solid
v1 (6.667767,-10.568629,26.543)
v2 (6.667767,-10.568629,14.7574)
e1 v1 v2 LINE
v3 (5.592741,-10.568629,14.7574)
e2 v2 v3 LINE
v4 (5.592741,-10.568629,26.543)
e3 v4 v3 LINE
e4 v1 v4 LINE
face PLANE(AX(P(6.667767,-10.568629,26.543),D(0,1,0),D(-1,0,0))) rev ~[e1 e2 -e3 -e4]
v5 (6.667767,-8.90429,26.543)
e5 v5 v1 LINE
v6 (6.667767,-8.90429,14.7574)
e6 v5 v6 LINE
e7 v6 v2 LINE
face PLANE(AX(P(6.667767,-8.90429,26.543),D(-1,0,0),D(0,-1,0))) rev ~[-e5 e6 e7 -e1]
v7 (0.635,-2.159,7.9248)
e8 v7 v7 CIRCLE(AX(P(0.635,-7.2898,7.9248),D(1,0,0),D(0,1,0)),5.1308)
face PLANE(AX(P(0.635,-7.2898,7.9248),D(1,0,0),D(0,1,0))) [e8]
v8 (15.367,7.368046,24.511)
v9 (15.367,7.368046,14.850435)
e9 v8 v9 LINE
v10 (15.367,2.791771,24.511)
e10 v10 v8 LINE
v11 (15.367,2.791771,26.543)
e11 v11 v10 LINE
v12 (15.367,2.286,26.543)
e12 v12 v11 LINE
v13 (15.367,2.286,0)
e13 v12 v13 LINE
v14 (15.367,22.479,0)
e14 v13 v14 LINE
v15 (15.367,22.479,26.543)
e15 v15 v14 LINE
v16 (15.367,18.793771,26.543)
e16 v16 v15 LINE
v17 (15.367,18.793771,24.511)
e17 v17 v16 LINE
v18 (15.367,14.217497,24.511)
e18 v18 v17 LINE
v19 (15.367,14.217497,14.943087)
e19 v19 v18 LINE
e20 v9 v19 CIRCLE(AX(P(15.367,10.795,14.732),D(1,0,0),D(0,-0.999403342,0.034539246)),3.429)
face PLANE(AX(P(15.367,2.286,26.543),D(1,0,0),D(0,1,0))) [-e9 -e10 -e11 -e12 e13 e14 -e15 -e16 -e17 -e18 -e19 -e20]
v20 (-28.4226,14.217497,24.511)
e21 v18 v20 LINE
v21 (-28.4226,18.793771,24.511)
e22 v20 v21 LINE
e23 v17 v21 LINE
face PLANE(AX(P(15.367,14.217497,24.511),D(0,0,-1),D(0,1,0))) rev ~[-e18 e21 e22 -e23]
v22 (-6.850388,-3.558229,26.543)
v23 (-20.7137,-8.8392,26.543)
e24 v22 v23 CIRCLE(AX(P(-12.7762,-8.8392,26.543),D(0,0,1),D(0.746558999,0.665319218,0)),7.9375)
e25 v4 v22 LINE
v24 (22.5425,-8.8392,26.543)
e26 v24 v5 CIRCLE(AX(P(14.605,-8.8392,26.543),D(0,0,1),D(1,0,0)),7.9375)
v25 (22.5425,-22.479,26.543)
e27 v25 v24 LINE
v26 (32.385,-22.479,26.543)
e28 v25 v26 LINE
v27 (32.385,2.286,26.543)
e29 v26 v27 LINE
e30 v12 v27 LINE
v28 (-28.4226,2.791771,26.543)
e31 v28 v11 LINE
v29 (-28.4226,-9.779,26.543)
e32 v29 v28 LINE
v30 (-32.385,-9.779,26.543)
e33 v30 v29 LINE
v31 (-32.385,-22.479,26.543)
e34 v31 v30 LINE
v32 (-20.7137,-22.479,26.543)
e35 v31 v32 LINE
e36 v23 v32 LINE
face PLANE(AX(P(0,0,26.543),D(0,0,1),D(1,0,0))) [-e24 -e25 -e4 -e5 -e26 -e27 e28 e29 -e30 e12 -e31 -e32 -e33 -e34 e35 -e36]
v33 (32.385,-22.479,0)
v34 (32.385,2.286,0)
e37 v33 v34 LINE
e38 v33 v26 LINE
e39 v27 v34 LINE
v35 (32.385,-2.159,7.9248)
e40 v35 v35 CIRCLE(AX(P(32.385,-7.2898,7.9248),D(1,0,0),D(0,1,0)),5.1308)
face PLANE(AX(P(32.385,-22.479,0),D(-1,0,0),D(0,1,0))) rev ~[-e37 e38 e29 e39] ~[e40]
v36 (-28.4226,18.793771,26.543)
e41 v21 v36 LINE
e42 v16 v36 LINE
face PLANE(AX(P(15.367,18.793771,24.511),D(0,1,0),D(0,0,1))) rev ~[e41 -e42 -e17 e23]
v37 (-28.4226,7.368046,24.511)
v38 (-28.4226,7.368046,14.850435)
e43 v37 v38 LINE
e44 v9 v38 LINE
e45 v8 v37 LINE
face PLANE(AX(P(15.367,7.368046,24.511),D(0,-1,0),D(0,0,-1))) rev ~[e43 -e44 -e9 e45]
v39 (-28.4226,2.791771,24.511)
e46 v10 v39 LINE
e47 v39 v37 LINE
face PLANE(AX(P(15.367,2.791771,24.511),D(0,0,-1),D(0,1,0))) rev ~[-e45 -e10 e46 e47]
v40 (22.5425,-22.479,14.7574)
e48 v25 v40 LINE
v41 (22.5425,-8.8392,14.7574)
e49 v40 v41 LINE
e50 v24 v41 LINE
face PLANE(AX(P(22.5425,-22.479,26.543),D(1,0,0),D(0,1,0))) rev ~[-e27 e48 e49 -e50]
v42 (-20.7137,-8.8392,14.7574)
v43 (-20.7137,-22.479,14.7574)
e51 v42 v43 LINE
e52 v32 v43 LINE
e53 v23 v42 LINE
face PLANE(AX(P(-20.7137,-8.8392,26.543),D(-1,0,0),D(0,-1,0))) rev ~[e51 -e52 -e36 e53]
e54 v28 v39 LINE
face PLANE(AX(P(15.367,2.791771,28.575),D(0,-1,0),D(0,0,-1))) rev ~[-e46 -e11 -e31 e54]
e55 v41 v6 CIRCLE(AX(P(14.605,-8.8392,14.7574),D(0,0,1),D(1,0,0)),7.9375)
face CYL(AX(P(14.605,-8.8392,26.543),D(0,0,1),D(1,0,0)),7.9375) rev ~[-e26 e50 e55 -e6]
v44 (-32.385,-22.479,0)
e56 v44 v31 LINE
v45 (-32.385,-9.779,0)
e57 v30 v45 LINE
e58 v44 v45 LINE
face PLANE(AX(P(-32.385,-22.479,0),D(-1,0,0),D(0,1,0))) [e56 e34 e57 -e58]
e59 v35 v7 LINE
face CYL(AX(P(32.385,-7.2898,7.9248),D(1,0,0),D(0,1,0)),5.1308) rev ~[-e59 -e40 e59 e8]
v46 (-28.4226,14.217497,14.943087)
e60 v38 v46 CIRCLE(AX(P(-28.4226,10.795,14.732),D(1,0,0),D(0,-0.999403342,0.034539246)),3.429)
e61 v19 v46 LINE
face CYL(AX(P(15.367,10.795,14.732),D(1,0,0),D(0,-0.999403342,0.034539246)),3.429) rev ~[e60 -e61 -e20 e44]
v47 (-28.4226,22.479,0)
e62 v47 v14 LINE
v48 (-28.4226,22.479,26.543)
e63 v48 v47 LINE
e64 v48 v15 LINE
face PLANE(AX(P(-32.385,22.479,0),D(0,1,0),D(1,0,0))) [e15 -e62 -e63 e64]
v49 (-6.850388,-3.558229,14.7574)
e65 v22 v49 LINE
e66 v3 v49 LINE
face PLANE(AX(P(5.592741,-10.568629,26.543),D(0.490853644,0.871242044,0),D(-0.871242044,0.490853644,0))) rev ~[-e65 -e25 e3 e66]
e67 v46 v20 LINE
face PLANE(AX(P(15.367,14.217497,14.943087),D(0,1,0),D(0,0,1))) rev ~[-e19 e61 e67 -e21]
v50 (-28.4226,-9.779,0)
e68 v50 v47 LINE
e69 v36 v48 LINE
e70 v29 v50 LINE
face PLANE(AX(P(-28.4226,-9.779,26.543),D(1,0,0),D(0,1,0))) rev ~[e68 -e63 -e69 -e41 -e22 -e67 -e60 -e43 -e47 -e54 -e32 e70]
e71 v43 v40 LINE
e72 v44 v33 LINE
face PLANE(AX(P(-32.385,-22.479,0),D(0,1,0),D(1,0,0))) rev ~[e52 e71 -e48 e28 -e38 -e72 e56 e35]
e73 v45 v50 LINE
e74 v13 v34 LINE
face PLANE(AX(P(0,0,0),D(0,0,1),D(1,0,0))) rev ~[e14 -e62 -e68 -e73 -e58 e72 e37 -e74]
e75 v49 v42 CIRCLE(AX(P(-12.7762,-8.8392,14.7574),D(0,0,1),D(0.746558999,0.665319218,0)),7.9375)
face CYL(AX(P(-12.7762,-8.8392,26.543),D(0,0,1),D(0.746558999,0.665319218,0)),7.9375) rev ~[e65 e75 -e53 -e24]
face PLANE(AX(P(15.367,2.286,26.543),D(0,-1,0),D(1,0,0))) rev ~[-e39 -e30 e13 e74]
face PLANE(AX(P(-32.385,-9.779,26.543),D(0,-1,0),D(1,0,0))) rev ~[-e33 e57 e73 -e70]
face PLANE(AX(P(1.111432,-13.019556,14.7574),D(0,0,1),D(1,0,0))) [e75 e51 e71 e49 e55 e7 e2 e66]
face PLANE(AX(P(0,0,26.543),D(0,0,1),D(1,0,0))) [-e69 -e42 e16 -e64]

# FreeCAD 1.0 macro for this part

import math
import FreeCAD as App
import Part
import Sketcher
from FreeCAD import Vector
Q = App.Units.Quantity


def add_polygon(sketch, points):
    """Adds a closed chain of lines whose ends are joined by coincident constraints."""
    first, n = sketch.GeometryCount, len(points)
    for a, b in zip(points, points[1:] + points[:1]):
        sketch.addGeometry(Part.LineSegment(App.Vector(*a, 0), App.Vector(*b, 0)), False)
    for i in range(n):
        sketch.addConstraint(Sketcher.Constraint("Coincident", first + i, 2, first + (i + 1) % n, 1))

doc = App.newDocument("Part")
body = doc.addObject("PartDesign::Body", "Body")

sketch1 = doc.addObject("Sketcher::SketchObject", "Sketch")
body.addObject(sketch1)
sketch1.AttachmentSupport = (doc.XY_Plane, [""])
sketch1.MapMode = "FlatFace"
add_polygon(sketch1, [(-32, 22), (-32, -22), (32, -22), (32, 22)])
sketch1.addConstraint(Sketcher.Constraint("Vertical", 0))
sketch1.addConstraint(Sketcher.Constraint("Horizontal", 1))
sketch1.addConstraint(Sketcher.Constraint("Vertical", 2))
sketch1.addConstraint(Sketcher.Constraint("Horizontal", 3))
sketch1.addConstraint(Sketcher.Constraint("Symmetric", 0, 2, 2, 2, -1, 1))
sketch1.addConstraint(Sketcher.Constraint("DistanceX", 1, 1, 1, 2, Q("2.55 in")))
sketch1.addConstraint(Sketcher.Constraint("DistanceY", 0, 2, 0, 1, Q("1.77 in")))
pad1 = doc.addObject("PartDesign::Pad", "Pad")
body.addObject(pad1)
pad1.Profile = sketch1
pad1.Length = Q("1.045 in")

sketch2 = doc.addObject("Sketcher::SketchObject", "Sketch001")
body.addObject(sketch2)
sketch2.AttachmentSupport = (doc.XY_Plane, [""])
sketch2.MapMode = "FlatFace"
sketch2.AttachmentOffset = App.Placement(Vector(0, 0, 1.045 * 25.4), App.Rotation())
add_polygon(sketch2, [(-32.4, 22.5), (-32.4, -9.8), (-28.4, -9.8), (-28.4, 22.5)])
add_polygon(sketch2, [(15.4, 22.5), (15.4, 2.3), (32.4, 2.3), (32.4, 22.5)])
sketch2.addConstraint(Sketcher.Constraint("Vertical", 0))
sketch2.addConstraint(Sketcher.Constraint("Horizontal", 1))
sketch2.addConstraint(Sketcher.Constraint("Vertical", 2))
sketch2.addConstraint(Sketcher.Constraint("Horizontal", 3))
sketch2.addConstraint(Sketcher.Constraint("Vertical", 4))
sketch2.addConstraint(Sketcher.Constraint("Horizontal", 5))
sketch2.addConstraint(Sketcher.Constraint("Vertical", 6))
sketch2.addConstraint(Sketcher.Constraint("Horizontal", 7))
sketch2.addConstraint(Sketcher.Constraint("Symmetric", 3, 2, 6, 2, -2))
sketch2.addConstraint(Sketcher.Constraint("DistanceX", 5, 1, 5, 2, Q("0.67 in")))
sketch2.addConstraint(Sketcher.Constraint("DistanceY", 0, 2, 0, 1, Q("1.27 in")))
sketch2.addConstraint(Sketcher.Constraint("DistanceX", 1, 1, 1, 2, Q("0.156 in")))
sketch2.addConstraint(Sketcher.Constraint("DistanceY", 4, 2, 4, 1, Q("0.795 in")))
sketch2.addConstraint(Sketcher.Constraint("DistanceY", -1, 1, 4, 2, Q("0.09 in")))
sketch2.addConstraint(Sketcher.Constraint("DistanceX", 0, 2, 4, 2, Q("1.88 in")))
pocket1 = doc.addObject("PartDesign::Pocket", "Pocket")
body.addObject(pocket1)
pocket1.Profile = sketch2
pocket1.Type = "ThroughAll"

sketch3 = doc.addObject("Sketcher::SketchObject", "Sketch002")
body.addObject(sketch3)
sketch3.AttachmentSupport = (doc.YZ_Plane, [""])
sketch3.MapMode = "FlatFace"
sketch3.AttachmentOffset = App.Placement(Vector(0, 0, 0.605 * 25.4), App.Rotation())
sketch3.addGeometry(Part.LineSegment(Vector(7.4, 24.5, 0), Vector(7.4, 14.9, 0)), False)
sketch3.addGeometry(Part.ArcOfCircle(Part.Circle(Vector(10.8, 14.7, 0), Vector(0, 0, 1), 3.4), math.radians(178), math.radians(364)), False)
sketch3.addGeometry(Part.LineSegment(Vector(14.2, 14.9, 0), Vector(14.2, 24.5, 0)), False)
sketch3.addGeometry(Part.LineSegment(Vector(14.2, 24.5, 0), Vector(18.8, 24.5, 0)), False)
sketch3.addGeometry(Part.LineSegment(Vector(18.8, 24.5, 0), Vector(18.8, 28.6, 0)), False)
sketch3.addGeometry(Part.LineSegment(Vector(18.8, 28.6, 0), Vector(2.8, 28.6, 0)), False)
sketch3.addGeometry(Part.LineSegment(Vector(2.8, 28.6, 0), Vector(2.8, 24.5, 0)), False)
sketch3.addGeometry(Part.LineSegment(Vector(2.8, 24.5, 0), Vector(7.4, 24.5, 0)), False)
sketch3.addConstraint(Sketcher.Constraint("Coincident", 0, 2, 1, 1))
sketch3.addConstraint(Sketcher.Constraint("Coincident", 1, 2, 2, 1))
sketch3.addConstraint(Sketcher.Constraint("Coincident", 2, 2, 3, 1))
sketch3.addConstraint(Sketcher.Constraint("Coincident", 3, 2, 4, 1))
sketch3.addConstraint(Sketcher.Constraint("Coincident", 4, 2, 5, 1))
sketch3.addConstraint(Sketcher.Constraint("Coincident", 5, 2, 6, 1))
sketch3.addConstraint(Sketcher.Constraint("Coincident", 6, 2, 7, 1))
sketch3.addConstraint(Sketcher.Constraint("Coincident", 7, 2, 0, 1))
sketch3.addConstraint(Sketcher.Constraint("Vertical", 0))
sketch3.addConstraint(Sketcher.Constraint("Vertical", 2))
sketch3.addConstraint(Sketcher.Constraint("Horizontal", 3))
sketch3.addConstraint(Sketcher.Constraint("Vertical", 4))
sketch3.addConstraint(Sketcher.Constraint("Horizontal", 5))
sketch3.addConstraint(Sketcher.Constraint("Vertical", 6))
sketch3.addConstraint(Sketcher.Constraint("Horizontal", 7))
sketch3.addConstraint(Sketcher.Constraint("Horizontal", 3, 2, 6, 2))
sketch3.addConstraint(Sketcher.Constraint("Equal", 3, 7))
sketch3.addConstraint(Sketcher.Constraint("Radius", 1, Q("0.135 in")))
sketch3.addConstraint(Sketcher.Constraint("DistanceX", 5, 2, 5, 1, Q("0.63 in")))
sketch3.addConstraint(Sketcher.Constraint("DistanceY", 4, 1, 4, 2, Q("0.16 in")))
sketch3.addConstraint(Sketcher.Constraint("DistanceY", -1, 1, 1, 3, Q("0.58 in")))
sketch3.addConstraint(Sketcher.Constraint("DistanceX", -1, 1, 1, 3, Q("0.425 in")))
sketch3.addConstraint(Sketcher.Constraint("DistanceY", -1, 1, 2, 2, Q("0.965 in")))
sketch3.addConstraint(Sketcher.Constraint("DistanceX", 3, 1, 3, 2, 4.576275))
sketch3.addConstraint(Sketcher.Constraint("DistanceY", 0, 2, 0, 1, 9.660565))
pocket2 = doc.addObject("PartDesign::Pocket", "Pocket001")
body.addObject(pocket2)
pocket2.Profile = sketch3
pocket2.Type = "ThroughAll"

sketch4 = doc.addObject("Sketcher::SketchObject", "Sketch003")
body.addObject(sketch4)
sketch4.AttachmentSupport = (doc.XY_Plane, [""])
sketch4.MapMode = "FlatFace"
sketch4.AttachmentOffset = App.Placement(Vector(0, 0, 1.045 * 25.4), App.Rotation())
sketch4.addGeometry(Part.LineSegment(Vector(22.5, -22.5, 0), Vector(22.5, -8.8, 0)), False)
sketch4.addGeometry(Part.ArcOfCircle(Part.Circle(Vector(14.6, -8.8, 0), Vector(0, 0, 1), 7.9), math.radians(0), math.radians(180)), False)
sketch4.addGeometry(Part.LineSegment(Vector(6.7, -8.9, 0), Vector(6.7, -10.6, 0)), False)
sketch4.addGeometry(Part.LineSegment(Vector(6.7, -10.6, 0), Vector(5.6, -10.6, 0)), False)
sketch4.addGeometry(Part.LineSegment(Vector(5.6, -10.6, 0), Vector(-6.9, -3.6, 0)), False)
sketch4.addGeometry(Part.ArcOfCircle(Part.Circle(Vector(-12.8, -8.8, 0), Vector(0, 0, 1), 7.9), math.radians(42), math.radians(180)), False)
sketch4.addGeometry(Part.LineSegment(Vector(-20.7, -8.8, 0), Vector(-20.7, -22.5, 0)), False)
sketch4.addGeometry(Part.LineSegment(Vector(-20.7, -22.5, 0), Vector(22.5, -22.5, 0)), False)
sketch4.addConstraint(Sketcher.Constraint("Tangent", 0, 2, 1, 1))
sketch4.addConstraint(Sketcher.Constraint("Coincident", 1, 2, 2, 1))
sketch4.addConstraint(Sketcher.Constraint("Coincident", 2, 2, 3, 1))
sketch4.addConstraint(Sketcher.Constraint("Coincident", 3, 2, 4, 1))
sketch4.addConstraint(Sketcher.Constraint("Coincident", 4, 2, 5, 1))
sketch4.addConstraint(Sketcher.Constraint("Tangent", 5, 2, 6, 1))
sketch4.addConstraint(Sketcher.Constraint("Coincident", 6, 2, 7, 1))
sketch4.addConstraint(Sketcher.Constraint("Coincident", 7, 2, 0, 1))
sketch4.addConstraint(Sketcher.Constraint("Vertical", 0))
sketch4.addConstraint(Sketcher.Constraint("Vertical", 2))
sketch4.addConstraint(Sketcher.Constraint("Horizontal", 3))
sketch4.addConstraint(Sketcher.Constraint("Vertical", 6))
sketch4.addConstraint(Sketcher.Constraint("Horizontal", 7))
sketch4.addConstraint(Sketcher.Constraint("Equal", 1, 5))
sketch4.addConstraint(Sketcher.Constraint("Horizontal", 1, 3, 5, 3))
sketch4.addConstraint(Sketcher.Constraint("Radius", 1, Q("0.3125 in")))
sketch4.addConstraint(Sketcher.Constraint("DistanceX", 7, 1, 7, 2, Q("1.703 in")))
sketch4.addConstraint(Sketcher.Constraint("DistanceY", 0, 1, 0, 2, Q("0.537 in")))
sketch4.addConstraint(Sketcher.Constraint("DistanceX", -1, 1, 1, 3, Q("0.575 in")))
sketch4.addConstraint(Sketcher.Constraint("DistanceY", 1, 3, -1, 1, Q("0.348 in")))
sketch4.addConstraint(Sketcher.Constraint("DistanceY", 3, 2, 4, 2, Q("0.276 in")))
sketch4.addConstraint(Sketcher.Constraint("DistanceY", 2, 2, 2, 1, 1.664339))
sketch4.addConstraint(Sketcher.Constraint("DistanceX", 3, 2, 3, 1, 1.075026))
sketch4.addConstraint(Sketcher.Constraint("DistanceY", 1, 2, -1, 1, 8.90429))
pocket3 = doc.addObject("PartDesign::Pocket", "Pocket002")
body.addObject(pocket3)
pocket3.Profile = sketch4
pocket3.Length = Q("0.464 in")

sketch5 = doc.addObject("Sketcher::SketchObject", "Sketch004")
body.addObject(sketch5)
sketch5.AttachmentSupport = (doc.YZ_Plane, [""])
sketch5.MapMode = "FlatFace"
sketch5.AttachmentOffset = App.Placement(Vector(0, 0, 1.275 * 25.4), App.Rotation())
sketch5.addGeometry(Part.Circle(Vector(-7, 8, 0), Vector(0, 0, 1), 5), False)
sketch5.addConstraint(Sketcher.Constraint("Diameter", 0, Q("0.404 in")))
sketch5.addConstraint(Sketcher.Constraint("DistanceX", 0, 3, -1, 1, Q("0.287 in")))
sketch5.addConstraint(Sketcher.Constraint("DistanceY", -1, 1, 0, 3, Q("0.312 in")))
pocket4 = doc.addObject("PartDesign::Pocket", "Pocket003")
body.addObject(pocket4)
pocket4.Profile = sketch5
pocket4.Length = Q("1.25 in")

doc.recompute()
